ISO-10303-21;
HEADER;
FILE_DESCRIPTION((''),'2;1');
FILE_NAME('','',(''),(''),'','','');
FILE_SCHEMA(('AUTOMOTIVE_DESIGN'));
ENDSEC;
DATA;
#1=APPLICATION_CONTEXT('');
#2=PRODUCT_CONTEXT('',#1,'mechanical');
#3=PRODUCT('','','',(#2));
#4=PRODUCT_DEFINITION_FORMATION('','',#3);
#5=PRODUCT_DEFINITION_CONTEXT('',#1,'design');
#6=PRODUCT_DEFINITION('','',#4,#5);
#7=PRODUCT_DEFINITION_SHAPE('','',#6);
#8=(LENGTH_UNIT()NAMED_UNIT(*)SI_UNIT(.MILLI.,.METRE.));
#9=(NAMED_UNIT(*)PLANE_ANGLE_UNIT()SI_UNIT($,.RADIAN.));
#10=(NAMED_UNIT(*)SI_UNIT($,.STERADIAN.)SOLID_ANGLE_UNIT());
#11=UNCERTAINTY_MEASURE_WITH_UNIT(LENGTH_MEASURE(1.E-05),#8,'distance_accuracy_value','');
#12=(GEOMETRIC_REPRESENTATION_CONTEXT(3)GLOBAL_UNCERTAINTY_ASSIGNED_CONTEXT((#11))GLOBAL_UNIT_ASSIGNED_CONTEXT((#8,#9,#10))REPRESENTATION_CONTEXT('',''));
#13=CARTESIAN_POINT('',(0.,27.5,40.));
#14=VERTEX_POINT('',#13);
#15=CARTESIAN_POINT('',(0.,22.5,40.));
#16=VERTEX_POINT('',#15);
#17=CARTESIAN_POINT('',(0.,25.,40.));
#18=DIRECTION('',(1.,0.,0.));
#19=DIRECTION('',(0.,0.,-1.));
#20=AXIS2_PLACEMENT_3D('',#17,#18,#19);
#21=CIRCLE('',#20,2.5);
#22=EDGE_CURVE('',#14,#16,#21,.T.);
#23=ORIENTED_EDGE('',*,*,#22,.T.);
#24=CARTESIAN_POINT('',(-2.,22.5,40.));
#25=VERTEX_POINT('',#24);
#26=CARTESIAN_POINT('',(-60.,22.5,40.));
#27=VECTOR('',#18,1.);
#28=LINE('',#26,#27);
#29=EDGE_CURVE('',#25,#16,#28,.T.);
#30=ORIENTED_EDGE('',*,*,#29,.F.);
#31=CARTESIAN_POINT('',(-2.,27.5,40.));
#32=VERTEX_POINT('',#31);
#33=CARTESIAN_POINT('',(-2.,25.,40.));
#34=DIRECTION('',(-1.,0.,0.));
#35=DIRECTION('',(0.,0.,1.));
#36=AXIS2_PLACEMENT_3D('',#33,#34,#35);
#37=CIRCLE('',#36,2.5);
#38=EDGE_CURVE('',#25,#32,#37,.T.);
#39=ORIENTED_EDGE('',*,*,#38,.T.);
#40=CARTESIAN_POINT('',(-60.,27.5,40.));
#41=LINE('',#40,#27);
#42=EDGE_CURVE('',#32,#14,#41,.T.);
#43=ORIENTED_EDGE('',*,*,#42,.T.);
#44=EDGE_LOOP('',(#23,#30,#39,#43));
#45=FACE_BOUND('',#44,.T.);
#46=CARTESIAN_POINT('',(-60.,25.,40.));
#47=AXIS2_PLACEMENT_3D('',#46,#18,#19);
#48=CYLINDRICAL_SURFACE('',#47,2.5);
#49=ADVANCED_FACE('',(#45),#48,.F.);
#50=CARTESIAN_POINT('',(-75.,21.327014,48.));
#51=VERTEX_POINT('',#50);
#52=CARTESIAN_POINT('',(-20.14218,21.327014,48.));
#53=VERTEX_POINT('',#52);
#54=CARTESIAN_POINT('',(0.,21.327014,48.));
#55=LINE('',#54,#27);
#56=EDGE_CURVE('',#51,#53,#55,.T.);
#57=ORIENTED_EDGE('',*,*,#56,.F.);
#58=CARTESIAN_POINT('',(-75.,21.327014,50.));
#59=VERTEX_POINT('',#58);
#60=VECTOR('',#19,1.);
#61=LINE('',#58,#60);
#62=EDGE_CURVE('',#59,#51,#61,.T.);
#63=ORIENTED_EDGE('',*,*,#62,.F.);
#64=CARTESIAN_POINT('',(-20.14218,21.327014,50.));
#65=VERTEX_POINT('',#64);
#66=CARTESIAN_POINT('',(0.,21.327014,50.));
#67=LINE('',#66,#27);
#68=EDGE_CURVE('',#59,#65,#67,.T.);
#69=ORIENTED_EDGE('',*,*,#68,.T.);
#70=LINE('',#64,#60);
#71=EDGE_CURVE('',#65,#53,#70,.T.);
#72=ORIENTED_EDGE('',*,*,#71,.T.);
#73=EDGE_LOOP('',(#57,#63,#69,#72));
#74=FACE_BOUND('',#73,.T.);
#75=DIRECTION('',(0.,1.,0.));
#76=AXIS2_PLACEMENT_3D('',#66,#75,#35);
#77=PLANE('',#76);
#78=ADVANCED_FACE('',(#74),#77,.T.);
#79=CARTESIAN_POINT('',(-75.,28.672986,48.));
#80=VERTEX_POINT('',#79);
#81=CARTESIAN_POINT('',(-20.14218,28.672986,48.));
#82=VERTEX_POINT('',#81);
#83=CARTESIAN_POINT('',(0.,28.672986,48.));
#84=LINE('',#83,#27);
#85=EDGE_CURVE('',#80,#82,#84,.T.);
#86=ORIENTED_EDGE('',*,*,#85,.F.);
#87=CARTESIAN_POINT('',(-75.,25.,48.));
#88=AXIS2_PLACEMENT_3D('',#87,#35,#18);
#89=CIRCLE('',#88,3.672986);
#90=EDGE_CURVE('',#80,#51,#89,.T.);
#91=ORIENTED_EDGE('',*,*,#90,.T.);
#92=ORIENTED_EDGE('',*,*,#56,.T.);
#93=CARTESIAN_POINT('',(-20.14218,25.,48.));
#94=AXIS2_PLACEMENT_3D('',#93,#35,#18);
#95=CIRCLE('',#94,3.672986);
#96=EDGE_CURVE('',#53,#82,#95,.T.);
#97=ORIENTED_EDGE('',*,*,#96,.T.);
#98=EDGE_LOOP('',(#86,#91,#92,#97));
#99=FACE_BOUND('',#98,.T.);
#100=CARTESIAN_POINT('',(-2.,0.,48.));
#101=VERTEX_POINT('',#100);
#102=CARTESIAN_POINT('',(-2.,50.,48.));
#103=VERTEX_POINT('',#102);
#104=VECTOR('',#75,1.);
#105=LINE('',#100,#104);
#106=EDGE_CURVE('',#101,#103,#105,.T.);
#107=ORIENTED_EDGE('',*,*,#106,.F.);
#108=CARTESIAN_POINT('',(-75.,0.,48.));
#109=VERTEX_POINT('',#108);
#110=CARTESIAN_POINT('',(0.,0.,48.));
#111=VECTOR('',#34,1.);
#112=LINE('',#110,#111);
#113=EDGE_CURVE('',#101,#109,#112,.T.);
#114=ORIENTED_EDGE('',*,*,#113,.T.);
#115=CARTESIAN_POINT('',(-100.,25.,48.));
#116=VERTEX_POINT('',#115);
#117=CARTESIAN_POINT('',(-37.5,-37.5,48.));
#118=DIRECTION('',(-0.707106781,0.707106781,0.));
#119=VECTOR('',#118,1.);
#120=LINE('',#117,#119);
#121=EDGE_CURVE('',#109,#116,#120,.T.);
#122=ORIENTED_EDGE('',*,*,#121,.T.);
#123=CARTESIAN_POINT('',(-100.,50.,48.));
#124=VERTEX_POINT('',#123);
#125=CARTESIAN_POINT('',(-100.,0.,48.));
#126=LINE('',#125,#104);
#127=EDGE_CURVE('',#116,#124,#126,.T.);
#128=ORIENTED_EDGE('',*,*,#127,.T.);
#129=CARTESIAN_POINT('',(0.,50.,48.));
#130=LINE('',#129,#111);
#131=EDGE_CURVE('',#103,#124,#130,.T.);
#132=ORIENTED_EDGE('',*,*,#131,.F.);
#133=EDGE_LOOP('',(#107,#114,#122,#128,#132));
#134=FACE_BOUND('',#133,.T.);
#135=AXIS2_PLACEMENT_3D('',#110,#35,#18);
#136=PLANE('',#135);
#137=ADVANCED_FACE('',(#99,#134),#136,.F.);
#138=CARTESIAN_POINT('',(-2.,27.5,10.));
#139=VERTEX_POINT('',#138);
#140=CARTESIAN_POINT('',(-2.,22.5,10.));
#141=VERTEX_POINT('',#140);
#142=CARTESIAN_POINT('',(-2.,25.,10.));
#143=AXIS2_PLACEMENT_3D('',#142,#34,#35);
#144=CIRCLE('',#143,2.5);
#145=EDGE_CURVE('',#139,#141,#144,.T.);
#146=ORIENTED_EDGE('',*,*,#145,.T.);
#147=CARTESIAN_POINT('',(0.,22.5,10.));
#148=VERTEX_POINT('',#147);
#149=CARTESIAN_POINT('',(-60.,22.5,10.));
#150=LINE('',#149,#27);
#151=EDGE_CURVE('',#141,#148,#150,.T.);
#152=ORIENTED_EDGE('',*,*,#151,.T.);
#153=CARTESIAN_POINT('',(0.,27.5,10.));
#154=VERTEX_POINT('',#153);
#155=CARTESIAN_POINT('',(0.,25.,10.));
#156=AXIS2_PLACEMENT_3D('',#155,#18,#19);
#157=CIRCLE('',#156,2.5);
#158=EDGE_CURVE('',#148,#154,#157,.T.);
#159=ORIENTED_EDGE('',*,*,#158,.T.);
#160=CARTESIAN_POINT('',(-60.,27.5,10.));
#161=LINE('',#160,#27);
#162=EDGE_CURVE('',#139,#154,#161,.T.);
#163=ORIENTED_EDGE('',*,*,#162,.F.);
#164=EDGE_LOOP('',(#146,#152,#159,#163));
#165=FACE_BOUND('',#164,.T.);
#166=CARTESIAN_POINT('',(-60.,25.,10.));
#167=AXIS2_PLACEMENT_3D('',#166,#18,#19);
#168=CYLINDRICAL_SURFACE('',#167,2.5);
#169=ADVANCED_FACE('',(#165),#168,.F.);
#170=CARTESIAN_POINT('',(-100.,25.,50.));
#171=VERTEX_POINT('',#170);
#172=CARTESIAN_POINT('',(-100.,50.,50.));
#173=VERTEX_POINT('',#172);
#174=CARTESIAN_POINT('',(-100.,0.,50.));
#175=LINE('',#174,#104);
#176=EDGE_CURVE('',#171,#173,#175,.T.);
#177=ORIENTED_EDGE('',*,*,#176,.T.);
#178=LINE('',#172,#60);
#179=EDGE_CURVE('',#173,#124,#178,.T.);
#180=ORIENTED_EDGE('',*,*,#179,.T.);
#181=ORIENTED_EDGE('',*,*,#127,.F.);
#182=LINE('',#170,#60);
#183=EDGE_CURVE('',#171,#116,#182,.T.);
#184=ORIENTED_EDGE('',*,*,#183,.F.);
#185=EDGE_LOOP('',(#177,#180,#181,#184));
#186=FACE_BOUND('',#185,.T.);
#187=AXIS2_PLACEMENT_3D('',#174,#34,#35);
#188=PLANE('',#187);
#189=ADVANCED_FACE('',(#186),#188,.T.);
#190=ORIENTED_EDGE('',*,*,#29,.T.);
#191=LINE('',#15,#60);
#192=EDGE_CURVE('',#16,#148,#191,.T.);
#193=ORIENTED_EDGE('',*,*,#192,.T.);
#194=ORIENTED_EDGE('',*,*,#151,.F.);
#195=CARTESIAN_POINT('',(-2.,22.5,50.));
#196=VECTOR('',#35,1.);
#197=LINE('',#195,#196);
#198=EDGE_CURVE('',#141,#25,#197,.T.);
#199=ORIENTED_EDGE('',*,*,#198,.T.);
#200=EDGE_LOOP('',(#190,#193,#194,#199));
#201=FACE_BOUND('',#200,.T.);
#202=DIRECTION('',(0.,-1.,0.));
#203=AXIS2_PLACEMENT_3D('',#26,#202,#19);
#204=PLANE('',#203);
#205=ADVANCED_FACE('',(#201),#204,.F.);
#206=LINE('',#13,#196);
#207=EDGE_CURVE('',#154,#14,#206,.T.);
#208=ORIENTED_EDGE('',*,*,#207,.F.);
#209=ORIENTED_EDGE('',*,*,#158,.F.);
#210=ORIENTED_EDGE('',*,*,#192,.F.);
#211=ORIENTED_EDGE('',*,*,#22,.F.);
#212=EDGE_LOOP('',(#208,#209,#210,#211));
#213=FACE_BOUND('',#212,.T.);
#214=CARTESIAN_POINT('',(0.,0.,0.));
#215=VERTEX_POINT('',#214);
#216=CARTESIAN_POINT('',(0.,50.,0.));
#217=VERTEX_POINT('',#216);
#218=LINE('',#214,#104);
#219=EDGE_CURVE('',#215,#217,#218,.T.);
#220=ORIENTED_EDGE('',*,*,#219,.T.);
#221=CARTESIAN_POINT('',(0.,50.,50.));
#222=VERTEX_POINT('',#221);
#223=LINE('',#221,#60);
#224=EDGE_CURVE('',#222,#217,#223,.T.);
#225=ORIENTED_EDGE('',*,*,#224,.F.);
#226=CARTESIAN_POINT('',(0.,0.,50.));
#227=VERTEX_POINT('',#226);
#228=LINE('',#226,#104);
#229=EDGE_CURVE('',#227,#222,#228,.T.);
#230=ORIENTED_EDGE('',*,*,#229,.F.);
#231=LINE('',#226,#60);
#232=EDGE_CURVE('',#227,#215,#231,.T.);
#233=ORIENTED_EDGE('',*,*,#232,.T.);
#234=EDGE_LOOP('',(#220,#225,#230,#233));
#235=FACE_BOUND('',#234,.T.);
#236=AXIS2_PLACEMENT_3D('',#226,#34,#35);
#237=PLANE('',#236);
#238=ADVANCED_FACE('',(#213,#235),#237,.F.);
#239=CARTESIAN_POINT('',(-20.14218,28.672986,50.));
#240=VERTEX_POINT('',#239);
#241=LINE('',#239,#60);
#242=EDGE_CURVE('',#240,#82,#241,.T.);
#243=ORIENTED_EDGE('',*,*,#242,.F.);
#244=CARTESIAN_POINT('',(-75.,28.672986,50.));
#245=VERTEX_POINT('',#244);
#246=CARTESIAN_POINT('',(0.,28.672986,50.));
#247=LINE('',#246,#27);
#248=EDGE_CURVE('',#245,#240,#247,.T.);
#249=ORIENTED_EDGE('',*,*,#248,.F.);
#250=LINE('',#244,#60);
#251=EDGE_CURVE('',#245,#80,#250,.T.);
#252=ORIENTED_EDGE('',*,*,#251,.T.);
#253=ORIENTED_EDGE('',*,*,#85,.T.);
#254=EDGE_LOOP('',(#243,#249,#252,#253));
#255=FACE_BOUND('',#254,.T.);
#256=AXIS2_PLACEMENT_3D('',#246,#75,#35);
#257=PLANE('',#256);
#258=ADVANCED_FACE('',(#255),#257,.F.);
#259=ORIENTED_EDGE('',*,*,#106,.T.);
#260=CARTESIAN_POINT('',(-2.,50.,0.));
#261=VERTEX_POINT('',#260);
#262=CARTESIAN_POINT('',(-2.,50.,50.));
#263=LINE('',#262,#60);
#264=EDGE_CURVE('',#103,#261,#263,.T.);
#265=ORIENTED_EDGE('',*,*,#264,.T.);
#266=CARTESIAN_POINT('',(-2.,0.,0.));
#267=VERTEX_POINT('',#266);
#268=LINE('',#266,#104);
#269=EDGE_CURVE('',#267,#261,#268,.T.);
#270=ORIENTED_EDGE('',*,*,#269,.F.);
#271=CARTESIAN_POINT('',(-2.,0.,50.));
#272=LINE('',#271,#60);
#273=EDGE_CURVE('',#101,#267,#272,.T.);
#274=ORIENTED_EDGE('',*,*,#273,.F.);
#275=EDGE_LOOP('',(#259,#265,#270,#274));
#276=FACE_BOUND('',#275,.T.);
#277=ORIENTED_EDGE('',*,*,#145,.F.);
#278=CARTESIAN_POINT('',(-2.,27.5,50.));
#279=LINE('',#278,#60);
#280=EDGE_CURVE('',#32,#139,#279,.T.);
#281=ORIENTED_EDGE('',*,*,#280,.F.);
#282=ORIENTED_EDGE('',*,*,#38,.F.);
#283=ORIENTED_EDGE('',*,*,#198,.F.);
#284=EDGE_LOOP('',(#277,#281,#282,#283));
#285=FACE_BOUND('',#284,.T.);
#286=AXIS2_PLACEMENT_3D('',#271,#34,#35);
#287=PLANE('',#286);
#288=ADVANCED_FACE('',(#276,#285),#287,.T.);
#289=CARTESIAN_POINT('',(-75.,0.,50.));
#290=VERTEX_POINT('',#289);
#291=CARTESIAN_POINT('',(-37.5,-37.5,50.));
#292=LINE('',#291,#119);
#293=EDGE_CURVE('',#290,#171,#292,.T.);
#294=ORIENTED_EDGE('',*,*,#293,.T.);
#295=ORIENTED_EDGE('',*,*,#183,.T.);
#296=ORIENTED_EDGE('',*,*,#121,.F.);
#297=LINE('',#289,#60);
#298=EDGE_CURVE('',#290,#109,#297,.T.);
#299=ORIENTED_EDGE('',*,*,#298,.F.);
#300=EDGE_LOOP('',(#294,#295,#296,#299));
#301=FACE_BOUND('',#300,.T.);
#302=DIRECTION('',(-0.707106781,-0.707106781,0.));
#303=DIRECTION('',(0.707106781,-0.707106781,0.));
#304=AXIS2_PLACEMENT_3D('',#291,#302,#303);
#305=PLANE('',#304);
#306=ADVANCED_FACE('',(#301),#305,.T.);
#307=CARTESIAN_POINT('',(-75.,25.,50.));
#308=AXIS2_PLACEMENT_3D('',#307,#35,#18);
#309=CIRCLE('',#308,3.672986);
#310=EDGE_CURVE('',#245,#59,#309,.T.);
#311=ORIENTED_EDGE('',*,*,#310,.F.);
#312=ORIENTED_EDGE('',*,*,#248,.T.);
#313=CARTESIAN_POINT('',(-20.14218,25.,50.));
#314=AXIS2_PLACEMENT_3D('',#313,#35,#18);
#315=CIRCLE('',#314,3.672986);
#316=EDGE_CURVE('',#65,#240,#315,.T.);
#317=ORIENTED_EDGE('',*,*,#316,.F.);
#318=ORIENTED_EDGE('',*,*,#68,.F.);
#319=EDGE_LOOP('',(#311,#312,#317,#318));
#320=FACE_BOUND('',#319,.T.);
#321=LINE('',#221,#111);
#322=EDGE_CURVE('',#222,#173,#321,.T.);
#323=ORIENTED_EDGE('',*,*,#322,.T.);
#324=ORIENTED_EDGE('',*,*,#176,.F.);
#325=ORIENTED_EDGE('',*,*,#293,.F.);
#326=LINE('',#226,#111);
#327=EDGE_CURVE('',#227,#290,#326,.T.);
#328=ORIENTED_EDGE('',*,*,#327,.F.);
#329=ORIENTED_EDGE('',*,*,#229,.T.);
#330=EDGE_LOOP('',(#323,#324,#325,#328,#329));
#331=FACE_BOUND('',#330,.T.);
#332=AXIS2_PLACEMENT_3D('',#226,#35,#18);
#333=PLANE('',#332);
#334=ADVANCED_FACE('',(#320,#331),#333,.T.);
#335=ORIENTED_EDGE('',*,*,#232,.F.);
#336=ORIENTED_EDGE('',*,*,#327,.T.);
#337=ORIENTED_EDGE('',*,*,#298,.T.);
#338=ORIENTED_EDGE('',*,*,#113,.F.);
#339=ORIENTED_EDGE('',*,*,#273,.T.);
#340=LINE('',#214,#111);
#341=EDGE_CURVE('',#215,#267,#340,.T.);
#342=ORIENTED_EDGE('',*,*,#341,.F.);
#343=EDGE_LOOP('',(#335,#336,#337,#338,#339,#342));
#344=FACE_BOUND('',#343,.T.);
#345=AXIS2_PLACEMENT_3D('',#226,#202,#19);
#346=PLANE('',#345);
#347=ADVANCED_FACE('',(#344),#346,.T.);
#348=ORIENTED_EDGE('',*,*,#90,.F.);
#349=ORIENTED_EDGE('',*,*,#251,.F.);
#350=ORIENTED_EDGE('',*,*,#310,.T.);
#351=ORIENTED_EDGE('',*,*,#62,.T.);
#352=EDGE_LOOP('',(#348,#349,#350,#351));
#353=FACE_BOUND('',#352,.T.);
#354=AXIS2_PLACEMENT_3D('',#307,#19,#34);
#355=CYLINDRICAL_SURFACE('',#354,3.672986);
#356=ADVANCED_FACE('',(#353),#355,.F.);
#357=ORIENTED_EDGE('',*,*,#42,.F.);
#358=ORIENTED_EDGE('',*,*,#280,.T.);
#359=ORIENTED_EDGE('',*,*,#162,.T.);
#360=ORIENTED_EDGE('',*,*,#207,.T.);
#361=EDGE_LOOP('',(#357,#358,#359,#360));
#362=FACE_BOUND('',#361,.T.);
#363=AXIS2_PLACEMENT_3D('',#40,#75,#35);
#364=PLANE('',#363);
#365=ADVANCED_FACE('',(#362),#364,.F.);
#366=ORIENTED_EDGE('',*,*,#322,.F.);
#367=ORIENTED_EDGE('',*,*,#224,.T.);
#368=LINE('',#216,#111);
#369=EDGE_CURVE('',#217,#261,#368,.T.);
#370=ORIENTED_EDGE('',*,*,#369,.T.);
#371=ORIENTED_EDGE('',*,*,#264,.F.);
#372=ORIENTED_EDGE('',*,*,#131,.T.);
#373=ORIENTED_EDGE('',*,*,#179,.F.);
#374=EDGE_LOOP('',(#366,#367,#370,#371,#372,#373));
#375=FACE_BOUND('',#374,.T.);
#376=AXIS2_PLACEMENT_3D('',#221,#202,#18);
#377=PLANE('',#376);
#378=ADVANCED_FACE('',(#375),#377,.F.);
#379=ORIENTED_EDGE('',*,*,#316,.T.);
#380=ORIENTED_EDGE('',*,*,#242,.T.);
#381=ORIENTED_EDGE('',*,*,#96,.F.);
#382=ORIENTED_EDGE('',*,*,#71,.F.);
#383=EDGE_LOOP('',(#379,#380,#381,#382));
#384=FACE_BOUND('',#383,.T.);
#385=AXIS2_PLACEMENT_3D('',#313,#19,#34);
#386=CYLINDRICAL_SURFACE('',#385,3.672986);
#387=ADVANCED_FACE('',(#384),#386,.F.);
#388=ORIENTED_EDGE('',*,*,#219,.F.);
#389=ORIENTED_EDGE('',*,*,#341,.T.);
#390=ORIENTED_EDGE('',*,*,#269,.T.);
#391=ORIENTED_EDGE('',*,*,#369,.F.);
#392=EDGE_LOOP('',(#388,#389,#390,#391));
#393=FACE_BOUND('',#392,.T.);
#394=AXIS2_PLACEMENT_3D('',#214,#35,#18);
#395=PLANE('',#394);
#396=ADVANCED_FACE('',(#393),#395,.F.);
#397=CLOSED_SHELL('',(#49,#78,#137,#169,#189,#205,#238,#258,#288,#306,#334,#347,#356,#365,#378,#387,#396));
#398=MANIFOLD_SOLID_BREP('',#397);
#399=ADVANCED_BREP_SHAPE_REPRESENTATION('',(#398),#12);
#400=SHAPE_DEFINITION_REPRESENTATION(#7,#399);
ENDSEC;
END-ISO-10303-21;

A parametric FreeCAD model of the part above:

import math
import FreeCAD as App
import Part
import Sketcher


def faces_at(feature, points):
    """Names of the faces that lie closest to the given points."""
    faces = feature.Shape.Faces
    near = lambda p: min(range(len(faces)), key=lambda i: faces[i].distToShape(Part.Vertex(*p))[0])
    return sorted({f"Face{near(p) + 1}" for p in points})


def add_polygon(sketch, points):
    """Adds a closed chain of lines whose ends are joined by coincident constraints."""
    first, n = sketch.GeometryCount, len(points)
    for a, b in zip(points, points[1:] + points[:1]):
        sketch.addGeometry(Part.LineSegment(App.Vector(*a, 0), App.Vector(*b, 0)), False)
    for i in range(n):
        sketch.addConstraint(Sketcher.Constraint("Coincident", first + i, 2, first + (i + 1) % n, 1))

doc = App.newDocument("Part")
body = doc.addObject("PartDesign::Body", "Body")

# Sketch on XY plane
sketch1 = body.newObject("Sketcher::SketchObject", "Sketch")
sketch1.AttachmentSupport = (doc.getObject("XY_Plane"), [""])
sketch1.MapMode = "FlatFace"
add_polygon(sketch1, [(-100, 25), (-75, 0), (0, 0), (0, 50), (-100, 50)])  # lines 0-4
sketch1.addGeometry(Part.LineSegment(App.Vector(-20.1, 21.3, 0), App.Vector(-75, 21.3, 0)), False)  # 5
sketch1.addGeometry(Part.ArcOfCircle(Part.Circle(App.Vector(-75, 25, 0), App.Vector(0, 0, 1), 3.7), math.radians(90), math.radians(270)), False)  # 6
sketch1.addGeometry(Part.LineSegment(App.Vector(-75, 28.7, 0), App.Vector(-20.1, 28.7, 0)), False)  # 7
sketch1.addGeometry(Part.ArcOfCircle(Part.Circle(App.Vector(-20.1, 25, 0), App.Vector(0, 0, 1), 3.7), math.radians(-90), math.radians(90)), False)  # 8
sketch1.addConstraint(Sketcher.Constraint("Tangent", 5, 2, 6, 2))
sketch1.addConstraint(Sketcher.Constraint("Tangent", 6, 1, 7, 1))
sketch1.addConstraint(Sketcher.Constraint("Tangent", 7, 2, 8, 2))
sketch1.addConstraint(Sketcher.Constraint("Tangent", 8, 1, 5, 1))
sketch1.addConstraint(Sketcher.Constraint("Horizontal", 1))
sketch1.addConstraint(Sketcher.Constraint("Vertical", 2))
sketch1.addConstraint(Sketcher.Constraint("Horizontal", 3))
sketch1.addConstraint(Sketcher.Constraint("Vertical", 4))
sketch1.addConstraint(Sketcher.Constraint("Horizontal", 5))
sketch1.addConstraint(Sketcher.Constraint("Horizontal", 7))
sketch1.addConstraint(Sketcher.Constraint("Coincident", 1, 2, -1, 1))
sketch1.addConstraint(Sketcher.Constraint("Horizontal", 8, 3, 4, 2))
sketch1.addConstraint(Sketcher.Constraint("Vertical", 6, 3, 0, 2))
sketch1.addConstraint(Sketcher.Constraint("DistanceX", 1, 1, 1, 2, 75.0))
sketch1.addConstraint(Sketcher.Constraint("DistanceX", 3, 2, 3, 1, 100.0))
sketch1.addConstraint(Sketcher.Constraint("DistanceY", 2, 1, 2, 2, 50.0))
sketch1.addConstraint(Sketcher.Constraint("DistanceY", 4, 2, 4, 1, 25.0))
sketch1.addConstraint(Sketcher.Constraint("Radius", 6, 3.672986))
sketch1.addConstraint(Sketcher.Constraint("DistanceX", 5, 2, 5, 1, 54.85782))
pad1 = body.newObject("PartDesign::Pad", "Pad")
pad1.Profile = sketch1
pad1.Length = 50
doc.recompute()

thickness = body.newObject("PartDesign::Thickness", "Thickness")
thickness.Base = (pad1, faces_at(pad1, [
    (-87.5, 12.5, 25),
    (-37.5, 0, 25),
    (-50, 50, 25),
    (-100, 37.5, 25),
    (-78.673, 25, 25),
    (-47.571, 28.673, 25),
    (-16.469, 25, 25),
    (-47.571, 21.327, 25),
    (-70, 15, 0),
]))
thickness.Value = 2
thickness.Reversed = True
thickness.Join = "Intersection"

# Sketch on YZ plane
sketch2 = body.newObject("Sketcher::SketchObject", "Sketch001")
sketch2.AttachmentSupport = (doc.getObject("YZ_Plane"), [""])
sketch2.MapMode = "FlatFace"
sketch2.addGeometry(Part.LineSegment(App.Vector(27.5, 10, 0), App.Vector(27.5, 40, 0)), False)
sketch2.addGeometry(Part.ArcOfCircle(Part.Circle(App.Vector(25, 40, 0), App.Vector(0, 0, 1), 2.5), math.radians(0), math.radians(180)), False)
sketch2.addGeometry(Part.LineSegment(App.Vector(22.5, 40, 0), App.Vector(22.5, 10, 0)), False)
sketch2.addGeometry(Part.ArcOfCircle(Part.Circle(App.Vector(25, 10, 0), App.Vector(0, 0, 1), 2.5), math.radians(180), math.radians(360)), False)
sketch2.addConstraint(Sketcher.Constraint("Tangent", 0, 2, 1, 1))
sketch2.addConstraint(Sketcher.Constraint("Tangent", 1, 2, 2, 1))
sketch2.addConstraint(Sketcher.Constraint("Tangent", 2, 2, 3, 1))
sketch2.addConstraint(Sketcher.Constraint("Tangent", 3, 2, 0, 1))
sketch2.addConstraint(Sketcher.Constraint("Vertical", 0))
sketch2.addConstraint(Sketcher.Constraint("Vertical", 2))
sketch2.addConstraint(Sketcher.Constraint("Radius", 1, 2.5))
sketch2.addConstraint(Sketcher.Constraint("DistanceY", 0, 1, 0, 2, 30.0))
sketch2.addConstraint(Sketcher.Constraint("DistanceX", -1, 1, 1, 3, 25.0))
sketch2.addConstraint(Sketcher.Constraint("DistanceY", -1, 1, 1, 3, 40.0))
pocket1 = body.newObject("PartDesign::Pocket", "Pocket")
pocket1.Profile = sketch2
pocket1.Length = 60

doc.recompute()
